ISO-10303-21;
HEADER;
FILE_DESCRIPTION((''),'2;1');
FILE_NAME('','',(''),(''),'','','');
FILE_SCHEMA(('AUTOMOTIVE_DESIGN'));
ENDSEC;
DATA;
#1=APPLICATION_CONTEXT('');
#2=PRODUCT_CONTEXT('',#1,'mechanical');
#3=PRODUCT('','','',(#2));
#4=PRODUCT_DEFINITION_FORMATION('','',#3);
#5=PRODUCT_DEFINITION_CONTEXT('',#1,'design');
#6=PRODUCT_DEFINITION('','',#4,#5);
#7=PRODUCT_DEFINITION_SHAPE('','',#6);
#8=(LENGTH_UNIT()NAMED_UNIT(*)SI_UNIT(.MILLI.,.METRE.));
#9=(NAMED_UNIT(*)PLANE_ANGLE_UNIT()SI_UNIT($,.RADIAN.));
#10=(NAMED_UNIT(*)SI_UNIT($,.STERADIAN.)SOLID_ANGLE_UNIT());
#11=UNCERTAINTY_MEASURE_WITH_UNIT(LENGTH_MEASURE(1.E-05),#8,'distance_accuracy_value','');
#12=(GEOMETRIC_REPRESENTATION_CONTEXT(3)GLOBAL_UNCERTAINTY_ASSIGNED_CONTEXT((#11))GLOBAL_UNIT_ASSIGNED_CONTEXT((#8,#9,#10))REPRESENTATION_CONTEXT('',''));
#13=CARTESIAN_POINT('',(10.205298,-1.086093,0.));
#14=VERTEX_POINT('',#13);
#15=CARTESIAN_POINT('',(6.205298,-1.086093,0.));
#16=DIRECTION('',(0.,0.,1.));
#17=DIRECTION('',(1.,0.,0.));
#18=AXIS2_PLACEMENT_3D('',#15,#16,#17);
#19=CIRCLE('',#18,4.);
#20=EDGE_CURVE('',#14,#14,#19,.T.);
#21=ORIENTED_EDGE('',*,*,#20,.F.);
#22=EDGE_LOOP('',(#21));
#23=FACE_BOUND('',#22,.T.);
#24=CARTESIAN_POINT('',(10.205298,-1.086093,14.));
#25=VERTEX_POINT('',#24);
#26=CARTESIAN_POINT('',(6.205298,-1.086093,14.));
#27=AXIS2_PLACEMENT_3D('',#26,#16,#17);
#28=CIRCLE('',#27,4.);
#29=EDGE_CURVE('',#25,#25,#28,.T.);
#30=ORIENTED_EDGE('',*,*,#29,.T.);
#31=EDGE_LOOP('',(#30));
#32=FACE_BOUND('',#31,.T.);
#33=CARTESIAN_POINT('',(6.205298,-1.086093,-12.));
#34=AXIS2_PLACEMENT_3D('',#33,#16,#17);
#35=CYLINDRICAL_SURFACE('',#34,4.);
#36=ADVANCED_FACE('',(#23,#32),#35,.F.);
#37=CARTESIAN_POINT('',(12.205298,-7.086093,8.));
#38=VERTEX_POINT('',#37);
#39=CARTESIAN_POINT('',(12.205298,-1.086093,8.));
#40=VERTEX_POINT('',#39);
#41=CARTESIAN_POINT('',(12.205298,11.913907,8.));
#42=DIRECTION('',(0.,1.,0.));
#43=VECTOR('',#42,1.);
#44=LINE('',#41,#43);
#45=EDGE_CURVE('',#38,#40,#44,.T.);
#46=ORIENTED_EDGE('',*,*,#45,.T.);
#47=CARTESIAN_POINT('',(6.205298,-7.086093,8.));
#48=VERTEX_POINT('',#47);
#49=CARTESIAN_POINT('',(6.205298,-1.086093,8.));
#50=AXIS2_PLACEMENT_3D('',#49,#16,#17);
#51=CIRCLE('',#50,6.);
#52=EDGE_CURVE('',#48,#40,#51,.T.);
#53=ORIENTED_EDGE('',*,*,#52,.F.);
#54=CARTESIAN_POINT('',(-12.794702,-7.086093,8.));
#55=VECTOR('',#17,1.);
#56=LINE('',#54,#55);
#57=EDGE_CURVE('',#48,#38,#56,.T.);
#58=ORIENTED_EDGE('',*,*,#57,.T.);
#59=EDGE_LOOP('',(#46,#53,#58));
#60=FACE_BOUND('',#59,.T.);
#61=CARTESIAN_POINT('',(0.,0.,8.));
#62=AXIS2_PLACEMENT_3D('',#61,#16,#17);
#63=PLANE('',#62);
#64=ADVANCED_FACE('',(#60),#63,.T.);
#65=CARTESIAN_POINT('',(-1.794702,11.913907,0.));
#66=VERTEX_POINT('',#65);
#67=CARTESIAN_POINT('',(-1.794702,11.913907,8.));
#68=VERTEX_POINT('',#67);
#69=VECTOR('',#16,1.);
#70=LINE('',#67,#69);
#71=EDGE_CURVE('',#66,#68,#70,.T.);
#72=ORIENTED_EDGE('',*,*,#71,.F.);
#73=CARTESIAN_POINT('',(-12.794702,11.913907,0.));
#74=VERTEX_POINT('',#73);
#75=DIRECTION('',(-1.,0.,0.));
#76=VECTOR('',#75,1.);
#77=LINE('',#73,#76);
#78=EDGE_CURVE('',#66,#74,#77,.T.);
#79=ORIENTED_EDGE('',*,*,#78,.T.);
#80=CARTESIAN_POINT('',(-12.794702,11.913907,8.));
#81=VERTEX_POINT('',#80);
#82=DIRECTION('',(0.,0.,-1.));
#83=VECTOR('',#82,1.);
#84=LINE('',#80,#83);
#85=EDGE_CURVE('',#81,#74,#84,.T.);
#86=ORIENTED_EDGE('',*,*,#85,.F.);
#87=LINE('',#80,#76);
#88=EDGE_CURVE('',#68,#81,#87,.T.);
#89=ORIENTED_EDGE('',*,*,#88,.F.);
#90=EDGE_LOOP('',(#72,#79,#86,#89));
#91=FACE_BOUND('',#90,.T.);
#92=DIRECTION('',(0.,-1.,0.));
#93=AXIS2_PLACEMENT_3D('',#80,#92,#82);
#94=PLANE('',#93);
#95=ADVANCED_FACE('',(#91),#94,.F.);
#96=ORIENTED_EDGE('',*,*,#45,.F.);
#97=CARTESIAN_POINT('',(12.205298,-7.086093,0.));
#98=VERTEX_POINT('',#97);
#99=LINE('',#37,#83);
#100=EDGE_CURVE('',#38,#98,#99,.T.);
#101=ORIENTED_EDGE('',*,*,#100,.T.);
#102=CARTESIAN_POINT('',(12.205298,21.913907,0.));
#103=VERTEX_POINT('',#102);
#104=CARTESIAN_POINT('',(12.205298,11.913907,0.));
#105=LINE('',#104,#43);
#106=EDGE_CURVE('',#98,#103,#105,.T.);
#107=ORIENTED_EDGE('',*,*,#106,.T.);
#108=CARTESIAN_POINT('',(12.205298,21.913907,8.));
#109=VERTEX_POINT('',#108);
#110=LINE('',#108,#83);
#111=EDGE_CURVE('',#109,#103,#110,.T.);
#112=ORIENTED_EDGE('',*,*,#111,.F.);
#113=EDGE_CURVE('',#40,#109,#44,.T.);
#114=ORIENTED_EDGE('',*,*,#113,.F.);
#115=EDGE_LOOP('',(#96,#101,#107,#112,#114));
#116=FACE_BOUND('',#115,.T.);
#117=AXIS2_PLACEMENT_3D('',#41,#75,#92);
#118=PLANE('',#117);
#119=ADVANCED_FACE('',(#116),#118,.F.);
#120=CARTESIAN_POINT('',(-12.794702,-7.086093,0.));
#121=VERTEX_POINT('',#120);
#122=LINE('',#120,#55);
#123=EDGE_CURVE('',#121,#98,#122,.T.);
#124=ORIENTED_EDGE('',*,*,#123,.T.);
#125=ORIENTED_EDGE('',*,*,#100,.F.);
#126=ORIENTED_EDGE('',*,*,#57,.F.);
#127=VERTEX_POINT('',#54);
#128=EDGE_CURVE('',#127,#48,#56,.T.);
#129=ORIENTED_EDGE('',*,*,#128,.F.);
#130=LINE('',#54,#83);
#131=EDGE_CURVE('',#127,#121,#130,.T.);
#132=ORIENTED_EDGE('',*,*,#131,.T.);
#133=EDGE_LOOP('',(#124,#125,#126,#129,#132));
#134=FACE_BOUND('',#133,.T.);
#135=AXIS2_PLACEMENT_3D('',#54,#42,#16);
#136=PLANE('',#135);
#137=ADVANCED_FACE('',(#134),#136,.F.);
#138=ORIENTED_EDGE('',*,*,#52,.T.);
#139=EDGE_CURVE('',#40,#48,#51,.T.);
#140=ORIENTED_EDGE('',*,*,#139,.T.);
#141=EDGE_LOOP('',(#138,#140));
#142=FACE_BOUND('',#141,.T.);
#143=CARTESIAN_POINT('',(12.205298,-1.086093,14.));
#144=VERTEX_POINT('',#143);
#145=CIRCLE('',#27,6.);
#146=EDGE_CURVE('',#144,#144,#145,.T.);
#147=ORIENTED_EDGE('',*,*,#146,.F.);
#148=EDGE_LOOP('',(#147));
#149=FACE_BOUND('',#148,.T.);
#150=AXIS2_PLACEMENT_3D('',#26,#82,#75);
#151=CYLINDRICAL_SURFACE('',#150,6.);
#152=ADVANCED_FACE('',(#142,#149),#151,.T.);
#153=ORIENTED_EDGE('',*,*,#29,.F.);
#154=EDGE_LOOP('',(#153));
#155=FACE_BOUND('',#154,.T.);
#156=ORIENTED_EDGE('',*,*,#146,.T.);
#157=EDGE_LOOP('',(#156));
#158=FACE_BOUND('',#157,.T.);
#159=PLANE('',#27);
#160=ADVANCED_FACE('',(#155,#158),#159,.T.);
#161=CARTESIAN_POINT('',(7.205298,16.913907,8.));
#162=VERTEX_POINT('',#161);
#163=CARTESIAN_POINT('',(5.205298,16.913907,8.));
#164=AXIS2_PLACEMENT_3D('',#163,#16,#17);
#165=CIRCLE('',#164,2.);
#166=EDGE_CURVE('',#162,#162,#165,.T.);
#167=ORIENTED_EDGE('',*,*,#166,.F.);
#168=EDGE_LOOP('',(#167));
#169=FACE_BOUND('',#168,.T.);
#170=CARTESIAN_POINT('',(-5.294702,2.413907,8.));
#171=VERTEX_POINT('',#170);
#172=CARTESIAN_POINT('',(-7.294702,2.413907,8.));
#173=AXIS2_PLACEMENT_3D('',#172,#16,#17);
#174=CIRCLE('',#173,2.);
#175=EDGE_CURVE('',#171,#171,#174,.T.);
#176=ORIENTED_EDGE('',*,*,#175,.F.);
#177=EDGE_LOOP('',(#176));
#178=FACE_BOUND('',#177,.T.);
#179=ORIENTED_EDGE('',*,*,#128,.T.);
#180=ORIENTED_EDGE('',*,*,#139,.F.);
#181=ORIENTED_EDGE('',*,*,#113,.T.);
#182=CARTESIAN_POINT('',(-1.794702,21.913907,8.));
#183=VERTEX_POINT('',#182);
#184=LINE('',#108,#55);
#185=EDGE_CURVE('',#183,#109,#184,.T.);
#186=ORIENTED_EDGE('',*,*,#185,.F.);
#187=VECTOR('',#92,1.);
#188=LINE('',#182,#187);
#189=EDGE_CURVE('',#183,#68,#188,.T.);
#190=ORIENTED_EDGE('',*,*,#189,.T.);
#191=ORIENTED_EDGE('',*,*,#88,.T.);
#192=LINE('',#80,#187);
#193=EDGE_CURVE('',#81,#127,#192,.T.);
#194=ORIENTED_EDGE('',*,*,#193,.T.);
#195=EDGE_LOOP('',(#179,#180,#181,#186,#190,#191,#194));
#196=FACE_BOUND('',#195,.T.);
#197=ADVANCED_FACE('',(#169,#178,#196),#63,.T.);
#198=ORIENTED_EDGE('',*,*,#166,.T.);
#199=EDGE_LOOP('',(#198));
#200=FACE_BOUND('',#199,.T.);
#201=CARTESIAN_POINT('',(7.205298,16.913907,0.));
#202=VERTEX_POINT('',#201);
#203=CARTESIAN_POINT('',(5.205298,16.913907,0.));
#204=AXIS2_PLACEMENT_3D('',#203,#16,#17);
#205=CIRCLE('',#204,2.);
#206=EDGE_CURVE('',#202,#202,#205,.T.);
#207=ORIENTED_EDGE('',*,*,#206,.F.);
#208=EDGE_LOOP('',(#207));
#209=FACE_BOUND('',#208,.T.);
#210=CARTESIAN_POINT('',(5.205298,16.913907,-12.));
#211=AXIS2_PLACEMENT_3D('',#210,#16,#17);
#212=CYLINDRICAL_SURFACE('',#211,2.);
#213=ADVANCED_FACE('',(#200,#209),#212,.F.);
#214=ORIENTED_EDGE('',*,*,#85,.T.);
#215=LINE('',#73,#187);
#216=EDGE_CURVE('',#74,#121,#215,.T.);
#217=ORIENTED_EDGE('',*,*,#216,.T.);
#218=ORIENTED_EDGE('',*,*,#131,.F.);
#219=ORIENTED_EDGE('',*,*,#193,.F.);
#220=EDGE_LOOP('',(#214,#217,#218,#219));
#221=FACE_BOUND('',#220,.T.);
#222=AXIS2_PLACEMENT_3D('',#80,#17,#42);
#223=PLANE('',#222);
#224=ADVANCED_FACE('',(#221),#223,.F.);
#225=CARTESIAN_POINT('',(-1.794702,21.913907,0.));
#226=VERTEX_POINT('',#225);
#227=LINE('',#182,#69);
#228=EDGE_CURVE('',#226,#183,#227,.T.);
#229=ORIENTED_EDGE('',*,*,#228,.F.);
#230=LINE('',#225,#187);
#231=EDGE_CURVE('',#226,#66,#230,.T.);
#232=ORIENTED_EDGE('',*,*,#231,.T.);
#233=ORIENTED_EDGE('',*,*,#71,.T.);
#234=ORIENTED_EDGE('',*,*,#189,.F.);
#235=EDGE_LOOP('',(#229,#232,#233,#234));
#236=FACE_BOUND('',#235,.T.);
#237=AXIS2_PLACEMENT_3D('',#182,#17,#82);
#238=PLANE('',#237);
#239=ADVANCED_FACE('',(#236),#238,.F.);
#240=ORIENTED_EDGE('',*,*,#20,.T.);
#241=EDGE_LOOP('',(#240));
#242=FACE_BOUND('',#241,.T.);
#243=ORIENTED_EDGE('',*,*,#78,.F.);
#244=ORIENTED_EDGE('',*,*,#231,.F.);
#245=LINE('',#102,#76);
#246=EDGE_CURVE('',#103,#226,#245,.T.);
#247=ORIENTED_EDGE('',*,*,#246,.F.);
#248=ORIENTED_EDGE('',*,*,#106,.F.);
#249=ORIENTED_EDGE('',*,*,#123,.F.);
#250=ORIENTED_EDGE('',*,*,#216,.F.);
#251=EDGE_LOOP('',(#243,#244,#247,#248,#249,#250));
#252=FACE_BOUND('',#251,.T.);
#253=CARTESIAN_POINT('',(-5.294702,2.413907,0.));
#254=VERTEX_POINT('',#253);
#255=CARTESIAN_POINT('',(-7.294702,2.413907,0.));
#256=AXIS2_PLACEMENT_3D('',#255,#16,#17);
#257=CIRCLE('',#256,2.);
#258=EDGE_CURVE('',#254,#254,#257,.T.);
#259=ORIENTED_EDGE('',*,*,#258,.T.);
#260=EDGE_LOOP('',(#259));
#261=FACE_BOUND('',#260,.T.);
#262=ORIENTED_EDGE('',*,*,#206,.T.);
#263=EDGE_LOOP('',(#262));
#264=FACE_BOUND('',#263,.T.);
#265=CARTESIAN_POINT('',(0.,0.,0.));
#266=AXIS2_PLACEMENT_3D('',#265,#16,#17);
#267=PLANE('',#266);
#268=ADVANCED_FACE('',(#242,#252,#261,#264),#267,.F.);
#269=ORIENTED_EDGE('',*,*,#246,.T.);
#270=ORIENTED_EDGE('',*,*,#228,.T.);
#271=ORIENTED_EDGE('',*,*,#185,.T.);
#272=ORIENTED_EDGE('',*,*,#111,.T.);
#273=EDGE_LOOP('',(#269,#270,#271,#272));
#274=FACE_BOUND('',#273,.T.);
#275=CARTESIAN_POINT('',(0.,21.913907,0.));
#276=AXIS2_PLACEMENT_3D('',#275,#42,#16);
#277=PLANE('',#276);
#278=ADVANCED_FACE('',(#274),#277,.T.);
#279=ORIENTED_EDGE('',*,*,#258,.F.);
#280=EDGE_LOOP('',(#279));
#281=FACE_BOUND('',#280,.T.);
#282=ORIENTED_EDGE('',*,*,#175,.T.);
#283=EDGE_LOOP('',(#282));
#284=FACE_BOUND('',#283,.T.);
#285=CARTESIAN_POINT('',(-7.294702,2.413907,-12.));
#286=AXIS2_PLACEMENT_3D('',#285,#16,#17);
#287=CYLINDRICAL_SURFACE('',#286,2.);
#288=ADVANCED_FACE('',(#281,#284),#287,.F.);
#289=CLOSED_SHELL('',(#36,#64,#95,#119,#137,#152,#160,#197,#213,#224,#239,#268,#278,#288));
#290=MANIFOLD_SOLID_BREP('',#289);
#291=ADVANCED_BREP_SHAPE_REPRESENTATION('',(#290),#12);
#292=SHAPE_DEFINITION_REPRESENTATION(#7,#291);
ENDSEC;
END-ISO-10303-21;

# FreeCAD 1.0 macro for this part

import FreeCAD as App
import Part
import Sketcher


def add_polygon(sketch, points):
    """Adds a closed chain of lines whose ends are joined by coincident constraints."""
    first, n = sketch.GeometryCount, len(points)
    for a, b in zip(points, points[1:] + points[:1]):
        sketch.addGeometry(Part.LineSegment(App.Vector(*a, 0), App.Vector(*b, 0)), False)
    for i in range(n):
        sketch.addConstraint(Sketcher.Constraint("Coincident", first + i, 2, first + (i + 1) % n, 1))

doc = App.newDocument("Part")
body = doc.addObject("PartDesign::Body", "Body")

# Sketch on XY plane
sketch1 = body.newObject("Sketcher::SketchObject", "Sketch")
sketch1.AttachmentSupport = (doc.getObject("XY_Plane"), [""])
sketch1.MapMode = "FlatFace"
add_polygon(sketch1, [(-12.794702, 11.913907), (-12.794702, -7.086093), (12.205298, -7.086093), (12.205298, 11.913907)])  # lines 0-3
sketch1.addConstraint([
    Sketcher.Constraint("Vertical", 0),
    Sketcher.Constraint("Horizontal", 1),
    Sketcher.Constraint("Vertical", 2),
    Sketcher.Constraint("Horizontal", 3),
    Sketcher.Constraint("DistanceX", 1, 1, 1, 2, 25.0),
    Sketcher.Constraint("DistanceY", 0, 2, 0, 1, 19.0),
    Sketcher.Constraint("DistanceX", 0, 2, -1, 1, 12.794702),
    Sketcher.Constraint("DistanceY", 0, 2, -1, 1, 7.086093),
])
pad1 = body.newObject("PartDesign::Pad", "Pad")
pad1.Profile = sketch1
pad1.Length = 8

# Sketch on XZ plane
sketch2 = body.newObject("Sketcher::SketchObject", "Sketch001")
sketch2.AttachmentSupport = (doc.getObject("XZ_Plane"), [""])
sketch2.MapMode = "FlatFace"
sketch2.AttachmentOffset = App.Placement(App.Vector(0, 0, -11.913907), App.Rotation())
add_polygon(sketch2, [(-1.794702, 0), (-1.794702, 8), (12.205298, 8), (12.205298, 0)])  # lines 0-3
sketch2.addConstraint([
    Sketcher.Constraint("Vertical", 0),
    Sketcher.Constraint("Horizontal", 1),
    Sketcher.Constraint("Vertical", 2),
    Sketcher.Constraint("Horizontal", 3),
    Sketcher.Constraint("PointOnObject", 2, 2, -1),
    Sketcher.Constraint("DistanceX", 1, 1, 1, 2, 14.0),
    Sketcher.Constraint("DistanceY", 0, 1, 0, 2, 8.0),
    Sketcher.Constraint("DistanceX", 0, 2, -1, 1, 1.794702),
])
pad2 = body.newObject("PartDesign::Pad", "Pad001")
pad2.Profile = sketch2
pad2.Length = 10
pad2.Reversed = True

# Sketch on XY plane
sketch3 = body.newObject("Sketcher::SketchObject", "Sketch002")
sketch3.AttachmentSupport = (doc.getObject("XY_Plane"), [""])
sketch3.MapMode = "FlatFace"
sketch3.AttachmentOffset = App.Placement(App.Vector(0, 0, 8), App.Rotation())
sketch3.addGeometry([
    Part.Circle(App.Vector(-7.294702, 2.413907, 0), App.Vector(0, 0, 1), 2),
    Part.Circle(App.Vector(5.205298, 16.913907, 0), App.Vector(0, 0, 1), 2),
], False)
sketch3.addConstraint([
    Sketcher.Constraint("Equal", 0, 1),
    Sketcher.Constraint("Diameter", 0, 4.0),
    Sketcher.Constraint("DistanceX", 0, 3, 1, 3, 12.5),
    Sketcher.Constraint("DistanceY", 0, 3, 1, 3, 14.5),
    Sketcher.Constraint("DistanceX", 0, 3, -1, 1, 7.294702),
    Sketcher.Constraint("DistanceY", -1, 1, 0, 3, 2.413907),
])
pocket1 = body.newObject("PartDesign::Pocket", "Pocket")
pocket1.Profile = sketch3
pocket1.Length = 20

# Sketch on XY plane
sketch4 = body.newObject("Sketcher::SketchObject", "Sketch003")
sketch4.AttachmentSupport = (doc.getObject("XY_Plane"), [""])
sketch4.MapMode = "FlatFace"
sketch4.AttachmentOffset = App.Placement(App.Vector(0, 0, 8), App.Rotation())
sketch4.addGeometry(Part.Circle(App.Vector(6.205298, -1.086093, 0), App.Vector(0, 0, 1), 4), False)
sketch4.addConstraint([
    Sketcher.Constraint("Diameter", 0, 8.0),
    Sketcher.Constraint("DistanceX", -1, 1, 0, 3, 6.205298),
    Sketcher.Constraint("DistanceY", 0, 3, -1, 1, 1.086093),
])
pocket2 = body.newObject("PartDesign::Pocket", "Pocket001")
pocket2.Profile = sketch4
pocket2.Length = 20

# Sketch on XY plane
sketch5 = body.newObject("Sketcher::SketchObject", "Sketch004")
sketch5.AttachmentSupport = (doc.getObject("XY_Plane"), [""])
sketch5.MapMode = "FlatFace"
sketch5.AttachmentOffset = App.Placement(App.Vector(0, 0, 14), App.Rotation())
sketch5.addGeometry([
    Part.Circle(App.Vector(6.205298, -1.086093, 0), App.Vector(0, 0, 1), 6),
    Part.Circle(App.Vector(6.205298, -1.086093, 0), App.Vector(0, 0, 1), 4),
], False)
sketch5.addConstraint([
    Sketcher.Constraint("Coincident", 1, 3, 0, 3),
    Sketcher.Constraint("Diameter", 0, 12.0),
    Sketcher.Constraint("Diameter", 1, 8.0),
    Sketcher.Constraint("DistanceX", -1, 1, 0, 3, 6.205298),
    Sketcher.Constraint("DistanceY", 0, 3, -1, 1, 1.086093),
])
pad3 = body.newObject("PartDesign::Pad", "Pad002")
pad3.Profile = sketch5
pad3.Length = 6
pad3.Reversed = True

doc.recompute()
